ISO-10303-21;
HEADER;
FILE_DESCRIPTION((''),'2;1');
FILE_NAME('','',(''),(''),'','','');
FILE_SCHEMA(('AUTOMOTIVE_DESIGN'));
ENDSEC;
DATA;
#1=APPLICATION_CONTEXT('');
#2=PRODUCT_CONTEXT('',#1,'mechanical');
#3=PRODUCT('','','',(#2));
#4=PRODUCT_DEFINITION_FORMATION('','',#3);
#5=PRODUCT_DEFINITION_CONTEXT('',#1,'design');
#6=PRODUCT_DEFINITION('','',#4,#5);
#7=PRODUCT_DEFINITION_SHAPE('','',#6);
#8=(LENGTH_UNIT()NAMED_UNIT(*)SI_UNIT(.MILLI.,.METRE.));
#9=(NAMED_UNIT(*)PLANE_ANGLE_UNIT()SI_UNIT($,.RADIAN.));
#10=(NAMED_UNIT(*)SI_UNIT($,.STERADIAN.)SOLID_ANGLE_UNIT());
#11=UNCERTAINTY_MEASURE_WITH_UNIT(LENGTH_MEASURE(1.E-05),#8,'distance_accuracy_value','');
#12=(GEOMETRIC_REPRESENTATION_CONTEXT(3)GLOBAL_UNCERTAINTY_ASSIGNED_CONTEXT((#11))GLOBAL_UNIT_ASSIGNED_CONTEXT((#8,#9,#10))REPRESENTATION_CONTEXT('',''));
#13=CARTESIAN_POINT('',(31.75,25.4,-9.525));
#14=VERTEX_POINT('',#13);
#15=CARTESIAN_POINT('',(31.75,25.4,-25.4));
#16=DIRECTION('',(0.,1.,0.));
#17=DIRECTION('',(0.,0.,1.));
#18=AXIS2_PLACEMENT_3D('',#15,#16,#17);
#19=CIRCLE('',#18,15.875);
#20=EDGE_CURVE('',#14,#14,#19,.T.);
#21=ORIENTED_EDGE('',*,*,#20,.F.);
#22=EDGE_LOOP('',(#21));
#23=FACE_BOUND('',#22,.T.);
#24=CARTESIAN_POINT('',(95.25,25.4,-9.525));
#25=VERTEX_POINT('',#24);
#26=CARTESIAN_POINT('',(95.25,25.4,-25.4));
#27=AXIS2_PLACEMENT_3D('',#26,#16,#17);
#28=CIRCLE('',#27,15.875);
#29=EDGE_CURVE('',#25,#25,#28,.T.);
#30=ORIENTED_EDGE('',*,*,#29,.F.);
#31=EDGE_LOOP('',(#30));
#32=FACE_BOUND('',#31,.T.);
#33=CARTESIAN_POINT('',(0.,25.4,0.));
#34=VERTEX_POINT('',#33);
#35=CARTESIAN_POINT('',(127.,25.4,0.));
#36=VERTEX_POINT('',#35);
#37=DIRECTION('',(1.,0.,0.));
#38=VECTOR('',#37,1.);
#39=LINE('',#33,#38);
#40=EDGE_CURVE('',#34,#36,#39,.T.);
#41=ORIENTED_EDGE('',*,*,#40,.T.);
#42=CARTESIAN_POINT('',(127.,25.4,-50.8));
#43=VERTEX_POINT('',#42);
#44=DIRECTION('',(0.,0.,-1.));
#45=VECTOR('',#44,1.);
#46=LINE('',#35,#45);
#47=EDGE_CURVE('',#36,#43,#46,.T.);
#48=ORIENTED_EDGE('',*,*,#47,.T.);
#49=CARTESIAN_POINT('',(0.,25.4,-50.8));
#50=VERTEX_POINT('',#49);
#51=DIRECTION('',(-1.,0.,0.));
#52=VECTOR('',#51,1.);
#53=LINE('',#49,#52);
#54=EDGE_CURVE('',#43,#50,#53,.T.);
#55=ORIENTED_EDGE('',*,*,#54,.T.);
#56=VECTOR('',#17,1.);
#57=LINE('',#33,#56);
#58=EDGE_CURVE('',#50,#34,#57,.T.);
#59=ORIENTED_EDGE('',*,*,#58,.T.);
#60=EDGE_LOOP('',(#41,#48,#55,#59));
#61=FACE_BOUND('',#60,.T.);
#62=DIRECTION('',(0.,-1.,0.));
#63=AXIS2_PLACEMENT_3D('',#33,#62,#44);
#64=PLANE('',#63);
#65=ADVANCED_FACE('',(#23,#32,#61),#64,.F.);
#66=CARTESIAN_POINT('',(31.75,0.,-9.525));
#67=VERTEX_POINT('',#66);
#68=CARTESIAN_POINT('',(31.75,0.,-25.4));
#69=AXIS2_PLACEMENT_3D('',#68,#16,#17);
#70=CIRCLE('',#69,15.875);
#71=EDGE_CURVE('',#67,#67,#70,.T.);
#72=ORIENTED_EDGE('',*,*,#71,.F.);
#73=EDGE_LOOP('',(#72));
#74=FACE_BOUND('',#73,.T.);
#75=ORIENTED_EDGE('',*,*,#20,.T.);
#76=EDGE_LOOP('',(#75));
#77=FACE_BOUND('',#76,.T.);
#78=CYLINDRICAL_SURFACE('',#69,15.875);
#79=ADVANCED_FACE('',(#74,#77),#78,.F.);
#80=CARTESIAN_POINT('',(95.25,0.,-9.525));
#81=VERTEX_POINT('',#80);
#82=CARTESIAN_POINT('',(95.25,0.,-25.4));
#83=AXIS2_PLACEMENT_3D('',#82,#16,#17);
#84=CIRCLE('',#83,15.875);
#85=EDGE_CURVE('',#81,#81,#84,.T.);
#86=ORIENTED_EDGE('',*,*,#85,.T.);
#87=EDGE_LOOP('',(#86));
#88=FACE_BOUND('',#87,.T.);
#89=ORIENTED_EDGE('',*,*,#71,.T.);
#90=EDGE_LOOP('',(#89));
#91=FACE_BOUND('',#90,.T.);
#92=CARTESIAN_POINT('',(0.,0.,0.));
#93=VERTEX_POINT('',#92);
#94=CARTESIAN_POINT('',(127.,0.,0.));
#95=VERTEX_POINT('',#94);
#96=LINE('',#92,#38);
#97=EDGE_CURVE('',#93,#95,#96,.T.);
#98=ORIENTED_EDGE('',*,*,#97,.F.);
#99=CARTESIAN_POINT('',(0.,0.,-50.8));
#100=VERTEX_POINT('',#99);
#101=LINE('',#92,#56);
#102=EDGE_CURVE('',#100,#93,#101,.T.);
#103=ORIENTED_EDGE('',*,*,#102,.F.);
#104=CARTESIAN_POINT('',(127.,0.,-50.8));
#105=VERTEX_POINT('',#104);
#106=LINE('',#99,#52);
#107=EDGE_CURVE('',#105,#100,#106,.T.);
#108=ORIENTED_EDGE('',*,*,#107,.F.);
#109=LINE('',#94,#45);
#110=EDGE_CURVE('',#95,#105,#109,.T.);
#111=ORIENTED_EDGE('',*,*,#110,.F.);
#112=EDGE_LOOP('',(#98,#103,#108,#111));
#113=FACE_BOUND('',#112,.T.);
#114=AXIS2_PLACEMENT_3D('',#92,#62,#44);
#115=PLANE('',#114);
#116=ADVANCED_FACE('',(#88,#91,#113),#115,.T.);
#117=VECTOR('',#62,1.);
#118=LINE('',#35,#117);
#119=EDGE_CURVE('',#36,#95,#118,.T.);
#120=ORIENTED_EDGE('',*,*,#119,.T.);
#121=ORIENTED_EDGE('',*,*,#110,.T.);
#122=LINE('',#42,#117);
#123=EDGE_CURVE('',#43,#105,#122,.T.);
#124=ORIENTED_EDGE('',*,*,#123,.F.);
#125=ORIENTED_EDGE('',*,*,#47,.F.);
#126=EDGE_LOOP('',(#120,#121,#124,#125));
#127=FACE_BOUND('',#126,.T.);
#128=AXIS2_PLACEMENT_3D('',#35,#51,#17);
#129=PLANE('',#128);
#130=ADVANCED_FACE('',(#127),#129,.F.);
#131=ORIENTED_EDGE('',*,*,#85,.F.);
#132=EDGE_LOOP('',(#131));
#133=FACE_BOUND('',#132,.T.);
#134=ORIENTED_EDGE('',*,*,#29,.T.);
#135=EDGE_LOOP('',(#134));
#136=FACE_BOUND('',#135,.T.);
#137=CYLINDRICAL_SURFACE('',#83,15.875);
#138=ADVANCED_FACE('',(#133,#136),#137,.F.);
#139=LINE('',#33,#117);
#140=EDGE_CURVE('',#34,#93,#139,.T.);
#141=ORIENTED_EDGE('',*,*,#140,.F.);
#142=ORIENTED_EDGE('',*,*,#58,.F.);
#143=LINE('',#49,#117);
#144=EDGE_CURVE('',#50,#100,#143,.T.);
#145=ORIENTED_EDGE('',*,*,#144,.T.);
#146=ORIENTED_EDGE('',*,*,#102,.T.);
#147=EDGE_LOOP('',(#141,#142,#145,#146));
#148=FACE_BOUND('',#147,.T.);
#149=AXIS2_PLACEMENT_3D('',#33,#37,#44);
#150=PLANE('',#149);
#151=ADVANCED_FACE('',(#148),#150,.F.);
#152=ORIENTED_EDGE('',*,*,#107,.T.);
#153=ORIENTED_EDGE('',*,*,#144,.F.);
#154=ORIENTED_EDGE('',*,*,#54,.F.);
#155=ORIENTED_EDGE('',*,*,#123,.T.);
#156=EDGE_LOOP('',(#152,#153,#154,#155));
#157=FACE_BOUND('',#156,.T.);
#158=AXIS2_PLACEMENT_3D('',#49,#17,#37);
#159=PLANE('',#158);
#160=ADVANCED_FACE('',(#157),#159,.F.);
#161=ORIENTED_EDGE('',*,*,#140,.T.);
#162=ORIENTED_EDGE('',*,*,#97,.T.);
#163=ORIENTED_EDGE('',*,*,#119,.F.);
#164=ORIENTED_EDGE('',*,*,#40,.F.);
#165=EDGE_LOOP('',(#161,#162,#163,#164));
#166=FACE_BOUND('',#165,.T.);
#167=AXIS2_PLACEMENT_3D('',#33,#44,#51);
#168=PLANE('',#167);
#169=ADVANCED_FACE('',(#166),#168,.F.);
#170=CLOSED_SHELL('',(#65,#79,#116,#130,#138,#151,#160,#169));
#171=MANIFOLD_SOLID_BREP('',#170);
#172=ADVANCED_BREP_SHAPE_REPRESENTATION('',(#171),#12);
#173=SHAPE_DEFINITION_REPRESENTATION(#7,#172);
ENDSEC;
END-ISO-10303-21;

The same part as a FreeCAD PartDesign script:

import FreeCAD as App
import Part
import Sketcher
Q = App.Units.Quantity

doc = App.newDocument("Part")
body = doc.addObject("PartDesign::Body", "Body")

sketch1 = body.newObject("Sketcher::SketchObject", "Sketch")
sketch1.AttachmentSupport = (doc.getObject("XZ_Plane"), [""])
sketch1.MapMode = "FlatFace"
sketch1.addGeometry([
    Part.LineSegment(App.Vector(0, -51, 0), App.Vector(0, 0, 0)),
    Part.LineSegment(App.Vector(0, 0, 0), App.Vector(127, 0, 0)),
    Part.LineSegment(App.Vector(127, 0, 0), App.Vector(127, -51, 0)),
    Part.LineSegment(App.Vector(127, -51, 0), App.Vector(0, -51, 0)),
], False)
sketch1.addConstraint([
    Sketcher.Constraint("Coincident", 0, 2, 1, 1),
    Sketcher.Constraint("Coincident", 1, 2, 2, 1),
    Sketcher.Constraint("Coincident", 2, 2, 3, 1),
    Sketcher.Constraint("Coincident", 3, 2, 0, 1),
    Sketcher.Constraint("Vertical", 0),
    Sketcher.Constraint("Horizontal", 1),
    Sketcher.Constraint("Vertical", 2),
    Sketcher.Constraint("Horizontal", 3),
    Sketcher.Constraint("Coincident", 0, 2, -1, 1),
    Sketcher.Constraint("DistanceX", 1, 1, 1, 2, Q("5 in")),
    Sketcher.Constraint("DistanceY", 0, 1, 0, 2, Q("2 in")),
])
pad1 = body.newObject("PartDesign::Pad", "Pad")
pad1.Profile = sketch1
pad1.Length = Q("1 in")
pad1.Reversed = True

sketch2 = body.newObject("Sketcher::SketchObject", "Sketch001")
sketch2.AttachmentSupport = (doc.getObject("XZ_Plane"), [""])
sketch2.MapMode = "FlatFace"
sketch2.AttachmentOffset = App.Placement(App.Vector(0, 0, -1 * 25.4), App.Rotation())
sketch2.addGeometry([
    Part.Circle(App.Vector(32, -25, 0), App.Vector(0, 0, 1), 16),
    Part.Circle(App.Vector(95, -25, 0), App.Vector(0, 0, 1), 16),
], False)
sketch2.addConstraint([
    Sketcher.Constraint("Equal", 0, 1),
    Sketcher.Constraint("Horizontal", 0, 3, 1, 3),
    Sketcher.Constraint("Diameter", 0, Q("1.25 in")),
    Sketcher.Constraint("DistanceY", 0, 3, -1, 1, Q("1 in")),
    Sketcher.Constraint("DistanceX", 0, 3, 1, 3, Q("2.5 in")),
    Sketcher.Constraint("DistanceX", -1, 1, 0, 3, Q("1.25 in")),
])
pocket1 = body.newObject("PartDesign::Pocket", "Pocket")
pocket1.Profile = sketch2
pocket1.Type = "ThroughAll"
pocket1.Reversed = True

doc.recompute()
